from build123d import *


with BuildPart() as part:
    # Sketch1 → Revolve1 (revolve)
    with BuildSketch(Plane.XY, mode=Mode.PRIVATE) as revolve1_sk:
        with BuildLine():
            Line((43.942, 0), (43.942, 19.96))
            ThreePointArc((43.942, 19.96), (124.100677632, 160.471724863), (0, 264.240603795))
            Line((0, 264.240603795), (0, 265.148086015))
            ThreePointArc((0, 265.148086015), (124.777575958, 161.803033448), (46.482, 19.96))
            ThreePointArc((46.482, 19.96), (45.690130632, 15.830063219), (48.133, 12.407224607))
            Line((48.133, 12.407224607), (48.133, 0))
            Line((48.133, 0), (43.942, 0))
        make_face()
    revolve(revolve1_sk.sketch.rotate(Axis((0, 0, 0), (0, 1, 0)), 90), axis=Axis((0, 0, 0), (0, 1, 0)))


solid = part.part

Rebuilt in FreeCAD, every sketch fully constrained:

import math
import FreeCAD as App
import Part
import Sketcher

V = App.Vector
Q = App.Units.Quantity

doc = App.newDocument("Part")
body = doc.addObject("PartDesign::Body", "Body")

sketch1 = body.newObject("Sketcher::SketchObject", "Sketch")
sketch1.AttachmentSupport = (doc.getObject("XY_Plane"), [""])
sketch1.MapMode = "FlatFace"
sketch1.addGeometry(Part.LineSegment(V(43.9, 20, 0), V(43.9, 0, 0)), False)
sketch1.addGeometry(Part.LineSegment(V(43.9, 0, 0), V(48.1, 0, 0)), False)
sketch1.addGeometry(Part.LineSegment(V(48.1, 0, 0), V(48.1, 12.4, 0)), False)
sketch1.addGeometry(Part.ArcOfCircle(Part.Circle(V(50.9, 17, 0), V(0, 0, 1), 5.3), math.radians(146), math.radians(239)), False)
sketch1.addGeometry(Part.ArcOfCircle(Part.Circle(V(0, 138.1, 0), V(0, 0, 1), 127), math.radians(-69), math.radians(90)), False)
sketch1.addGeometry(Part.LineSegment(V(0, 265.1, 0), V(0, 264.2, 0)), False)
sketch1.addGeometry(Part.ArcOfCircle(Part.Circle(V(0, 138.1, 0), V(0, 0, 1), 126.1), math.radians(-70), math.radians(90)), False)
sketch1.addConstraint(Sketcher.Constraint("Coincident", 0, 2, 1, 1))
sketch1.addConstraint(Sketcher.Constraint("Coincident", 1, 2, 2, 1))
sketch1.addConstraint(Sketcher.Constraint("Coincident", 2, 2, 3, 2))
sketch1.addConstraint(Sketcher.Constraint("Coincident", 3, 1, 4, 1))
sketch1.addConstraint(Sketcher.Constraint("Coincident", 4, 2, 5, 1))
sketch1.addConstraint(Sketcher.Constraint("Coincident", 5, 2, 6, 2))
sketch1.addConstraint(Sketcher.Constraint("Coincident", 6, 1, 0, 1))
sketch1.addConstraint(Sketcher.Constraint("Vertical", 0))
sketch1.addConstraint(Sketcher.Constraint("Horizontal", 1))
sketch1.addConstraint(Sketcher.Constraint("Vertical", 2))
sketch1.addConstraint(Sketcher.Constraint("Vertical", 5))
sketch1.addConstraint(Sketcher.Constraint("Coincident", 6, 3, 4, 3))
sketch1.addConstraint(Sketcher.Constraint("PointOnObject", 4, 3, -2))
sketch1.addConstraint(Sketcher.Constraint("PointOnObject", 0, 2, -1))
sketch1.addConstraint(Sketcher.Constraint("PointOnObject", 4, 2, -2))
sketch1.addConstraint(Sketcher.Constraint("Horizontal", 3, 1, 6, 1))
sketch1.addConstraint(Sketcher.Constraint("Radius", 4, Q("5 in")))
sketch1.addConstraint(Sketcher.Constraint("DistanceX", 0, 2, 3, 1, Q("0.1 in")))
sketch1.addConstraint(Sketcher.Constraint("DistanceX", 1, 1, 1, 2, Q("0.165 in")))
sketch1.addConstraint(Sketcher.Constraint("DistanceX", -1, 1, 0, 2, Q("1.73 in")))
sketch1.addConstraint(Sketcher.Constraint("Radius", 3, 5.340619))
sketch1.addConstraint(Sketcher.Constraint("DistanceY", 0, 2, 0, 1, 19.96))
sketch1.addConstraint(Sketcher.Constraint("DistanceY", 2, 1, 2, 2, 12.407225))
revolution = body.newObject("PartDesign::Revolution", "Revolution")
revolution.Profile = sketch1
revolution.ReferenceAxis = (sketch1, ["V_Axis"])
revolution.Angle = 360

doc.recompute()
